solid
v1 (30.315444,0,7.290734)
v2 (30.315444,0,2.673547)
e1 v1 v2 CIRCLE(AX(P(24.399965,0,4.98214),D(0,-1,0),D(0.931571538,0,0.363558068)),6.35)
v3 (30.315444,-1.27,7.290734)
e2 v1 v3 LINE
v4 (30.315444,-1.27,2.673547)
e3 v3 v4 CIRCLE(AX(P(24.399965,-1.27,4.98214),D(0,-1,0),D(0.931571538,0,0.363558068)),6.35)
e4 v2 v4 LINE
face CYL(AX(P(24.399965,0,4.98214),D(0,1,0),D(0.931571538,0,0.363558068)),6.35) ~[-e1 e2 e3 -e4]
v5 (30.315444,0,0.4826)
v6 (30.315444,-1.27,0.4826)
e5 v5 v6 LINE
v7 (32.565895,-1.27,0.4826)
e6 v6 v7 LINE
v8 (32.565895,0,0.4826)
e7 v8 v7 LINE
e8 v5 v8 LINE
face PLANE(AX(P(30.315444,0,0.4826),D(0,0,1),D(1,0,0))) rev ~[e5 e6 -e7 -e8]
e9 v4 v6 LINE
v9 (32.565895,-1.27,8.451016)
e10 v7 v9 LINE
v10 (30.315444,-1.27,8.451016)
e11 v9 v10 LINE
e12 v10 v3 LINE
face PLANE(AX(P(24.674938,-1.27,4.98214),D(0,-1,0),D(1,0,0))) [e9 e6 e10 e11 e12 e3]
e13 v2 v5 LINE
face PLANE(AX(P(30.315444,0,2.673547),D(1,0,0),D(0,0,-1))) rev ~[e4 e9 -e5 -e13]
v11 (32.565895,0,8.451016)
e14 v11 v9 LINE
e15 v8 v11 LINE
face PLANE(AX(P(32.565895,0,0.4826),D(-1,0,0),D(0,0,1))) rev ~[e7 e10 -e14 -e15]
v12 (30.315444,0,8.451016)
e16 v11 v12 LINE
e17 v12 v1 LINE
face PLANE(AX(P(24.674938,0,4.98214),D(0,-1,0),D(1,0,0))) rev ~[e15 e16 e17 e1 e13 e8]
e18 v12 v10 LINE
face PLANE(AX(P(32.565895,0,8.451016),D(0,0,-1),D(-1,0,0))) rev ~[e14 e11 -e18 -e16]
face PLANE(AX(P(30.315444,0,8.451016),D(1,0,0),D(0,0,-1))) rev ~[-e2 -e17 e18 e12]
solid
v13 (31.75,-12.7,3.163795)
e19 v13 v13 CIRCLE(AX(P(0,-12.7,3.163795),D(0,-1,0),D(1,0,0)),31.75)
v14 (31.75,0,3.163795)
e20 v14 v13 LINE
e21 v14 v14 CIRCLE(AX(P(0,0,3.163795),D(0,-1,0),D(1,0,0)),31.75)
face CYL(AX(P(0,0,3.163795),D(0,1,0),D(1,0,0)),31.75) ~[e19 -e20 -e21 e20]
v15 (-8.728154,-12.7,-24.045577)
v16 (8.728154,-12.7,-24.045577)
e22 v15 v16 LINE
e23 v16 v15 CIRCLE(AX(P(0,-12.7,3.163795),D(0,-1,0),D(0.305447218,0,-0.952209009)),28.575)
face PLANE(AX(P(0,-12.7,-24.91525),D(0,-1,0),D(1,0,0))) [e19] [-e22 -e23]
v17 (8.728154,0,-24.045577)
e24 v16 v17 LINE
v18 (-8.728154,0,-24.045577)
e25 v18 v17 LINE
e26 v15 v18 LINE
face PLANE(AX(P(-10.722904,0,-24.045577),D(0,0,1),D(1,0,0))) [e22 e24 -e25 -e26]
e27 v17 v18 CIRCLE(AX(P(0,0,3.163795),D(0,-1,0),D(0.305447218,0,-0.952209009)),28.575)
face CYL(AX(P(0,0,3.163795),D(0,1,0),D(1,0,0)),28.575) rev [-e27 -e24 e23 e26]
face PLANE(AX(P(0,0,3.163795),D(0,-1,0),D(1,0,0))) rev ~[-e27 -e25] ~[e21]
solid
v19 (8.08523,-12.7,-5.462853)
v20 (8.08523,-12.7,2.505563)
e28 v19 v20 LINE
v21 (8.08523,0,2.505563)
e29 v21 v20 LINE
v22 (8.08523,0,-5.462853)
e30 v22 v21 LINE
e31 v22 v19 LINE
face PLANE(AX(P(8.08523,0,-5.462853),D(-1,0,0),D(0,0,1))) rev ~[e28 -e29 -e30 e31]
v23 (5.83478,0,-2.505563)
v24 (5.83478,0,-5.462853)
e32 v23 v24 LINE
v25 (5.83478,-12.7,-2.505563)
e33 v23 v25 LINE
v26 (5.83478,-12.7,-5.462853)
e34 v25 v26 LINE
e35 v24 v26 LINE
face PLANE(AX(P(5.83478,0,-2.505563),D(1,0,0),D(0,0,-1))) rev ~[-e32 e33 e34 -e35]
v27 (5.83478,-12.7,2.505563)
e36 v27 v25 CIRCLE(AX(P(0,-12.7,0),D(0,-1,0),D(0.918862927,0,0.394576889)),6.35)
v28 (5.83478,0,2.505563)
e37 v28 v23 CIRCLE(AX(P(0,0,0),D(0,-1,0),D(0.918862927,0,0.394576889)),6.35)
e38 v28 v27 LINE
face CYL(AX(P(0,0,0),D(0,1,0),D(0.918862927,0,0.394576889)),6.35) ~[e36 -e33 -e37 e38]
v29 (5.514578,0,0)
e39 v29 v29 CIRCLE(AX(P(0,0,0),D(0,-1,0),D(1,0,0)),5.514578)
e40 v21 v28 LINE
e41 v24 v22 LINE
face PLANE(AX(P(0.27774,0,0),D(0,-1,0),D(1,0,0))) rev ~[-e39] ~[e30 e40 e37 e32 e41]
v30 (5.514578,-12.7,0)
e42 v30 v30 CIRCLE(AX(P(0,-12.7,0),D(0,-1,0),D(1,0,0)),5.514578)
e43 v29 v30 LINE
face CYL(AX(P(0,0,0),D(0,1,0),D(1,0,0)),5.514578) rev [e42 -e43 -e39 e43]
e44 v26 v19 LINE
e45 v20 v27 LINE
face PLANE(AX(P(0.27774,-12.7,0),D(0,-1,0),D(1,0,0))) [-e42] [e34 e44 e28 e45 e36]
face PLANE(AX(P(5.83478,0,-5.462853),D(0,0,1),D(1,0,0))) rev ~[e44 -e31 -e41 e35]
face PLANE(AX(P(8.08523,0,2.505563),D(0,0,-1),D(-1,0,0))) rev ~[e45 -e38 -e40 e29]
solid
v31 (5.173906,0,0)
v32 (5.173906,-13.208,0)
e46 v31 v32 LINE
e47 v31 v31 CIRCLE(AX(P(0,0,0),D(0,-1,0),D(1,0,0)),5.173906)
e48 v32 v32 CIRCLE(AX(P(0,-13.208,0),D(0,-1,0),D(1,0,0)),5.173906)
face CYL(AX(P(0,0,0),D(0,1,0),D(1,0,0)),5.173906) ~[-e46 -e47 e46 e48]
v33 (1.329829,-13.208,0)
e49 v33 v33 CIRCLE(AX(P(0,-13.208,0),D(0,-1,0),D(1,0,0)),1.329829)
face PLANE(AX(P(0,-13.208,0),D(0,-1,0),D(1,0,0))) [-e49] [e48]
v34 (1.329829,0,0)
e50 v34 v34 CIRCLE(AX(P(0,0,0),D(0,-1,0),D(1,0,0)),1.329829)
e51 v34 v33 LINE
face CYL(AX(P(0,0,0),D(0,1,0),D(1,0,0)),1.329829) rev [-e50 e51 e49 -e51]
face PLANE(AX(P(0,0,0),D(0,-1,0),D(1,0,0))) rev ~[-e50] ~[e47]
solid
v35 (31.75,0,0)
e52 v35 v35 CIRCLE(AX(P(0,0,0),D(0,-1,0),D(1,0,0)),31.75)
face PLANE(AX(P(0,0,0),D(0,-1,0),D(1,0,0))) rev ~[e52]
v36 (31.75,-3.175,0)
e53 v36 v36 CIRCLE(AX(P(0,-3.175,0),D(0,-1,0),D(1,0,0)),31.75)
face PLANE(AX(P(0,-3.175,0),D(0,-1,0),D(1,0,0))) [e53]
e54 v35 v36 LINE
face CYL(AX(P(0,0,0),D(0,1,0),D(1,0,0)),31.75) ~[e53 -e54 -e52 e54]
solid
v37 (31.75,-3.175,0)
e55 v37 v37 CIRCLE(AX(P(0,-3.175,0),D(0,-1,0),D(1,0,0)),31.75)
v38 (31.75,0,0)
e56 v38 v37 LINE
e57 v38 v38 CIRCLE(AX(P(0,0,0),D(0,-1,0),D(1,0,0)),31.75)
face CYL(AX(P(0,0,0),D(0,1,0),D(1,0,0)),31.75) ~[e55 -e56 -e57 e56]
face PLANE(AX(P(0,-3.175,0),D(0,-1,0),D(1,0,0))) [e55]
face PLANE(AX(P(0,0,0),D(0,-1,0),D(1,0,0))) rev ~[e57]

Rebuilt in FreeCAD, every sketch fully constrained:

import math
import FreeCAD as App
import Part
import Sketcher
from FreeCAD import Vector
Q = App.Units.Quantity

doc = App.newDocument("Part")
body = doc.addObject("PartDesign::Body", "Body")

sketch1 = body.newObject("Sketcher::SketchObject", "Sketch")
sketch1.AttachmentSupport = (doc.getObject("XZ_Plane"), [""])
sketch1.MapMode = "FlatFace"
sketch1.addGeometry([
    Part.Circle(Vector(0, 3, 0), Vector(0, 0, 1), 32),
    Part.Circle(Vector(0, 3, 0), Vector(0, 0, 1), 29),
], False)
sketch1.addConstraint([
    Sketcher.Constraint("Coincident", 1, 3, 0, 3),
    Sketcher.Constraint("PointOnObject", 0, 3, -2),
    Sketcher.Constraint("Diameter", 0, Q("2.5 in")),
    Sketcher.Constraint("Diameter", 1, Q("2.25 in")),
    Sketcher.Constraint("DistanceY", -1, 1, 0, 3, Q("3.163795 mm")),
])
pad1 = body.newObject("PartDesign::Pad", "Pad")
pad1.Profile = sketch1
pad1.Length = Q("0.5 in")

sketch2 = body.newObject("Sketcher::SketchObject", "Sketch001")
sketch2.AttachmentSupport = (doc.getObject("XZ_Plane"), [""])
sketch2.MapMode = "FlatFace"
sketch2.addGeometry([
    Part.LineSegment(Vector(-10.7, -24, 0), Vector(-10.7, -25.8, 0)),
    Part.LineSegment(Vector(-10.7, -25.8, 0), Vector(10.7, -25.8, 0)),
    Part.LineSegment(Vector(10.7, -25.8, 0), Vector(10.7, -24, 0)),
    Part.LineSegment(Vector(10.7, -24, 0), Vector(-10.7, -24, 0)),
], False)
sketch2.addConstraint([
    Sketcher.Constraint("Coincident", 0, 2, 1, 1),
    Sketcher.Constraint("Coincident", 1, 2, 2, 1),
    Sketcher.Constraint("Coincident", 2, 2, 3, 1),
    Sketcher.Constraint("Coincident", 3, 2, 0, 1),
    Sketcher.Constraint("Vertical", 0),
    Sketcher.Constraint("Horizontal", 1),
    Sketcher.Constraint("Vertical", 2),
    Sketcher.Constraint("Horizontal", 3),
    Sketcher.Constraint("DistanceX", 1, 1, 1, 2, Q("21.445807 mm")),
    Sketcher.Constraint("DistanceY", 0, 2, 0, 1, Q("1.739345 mm")),
    Sketcher.Constraint("DistanceX", 0, 2, -1, 1, Q("10.722904 mm")),
    Sketcher.Constraint("DistanceY", 0, 2, -1, 1, Q("25.784923 mm")),
])
pad2 = body.newObject("PartDesign::Pad", "Pad001")
pad2.Profile = sketch2
pad2.Length = Q("0.5 in")
body2 = doc.addObject("PartDesign::Body", "Body001")

sketch3 = body2.newObject("Sketcher::SketchObject", "Sketch002")
sketch3.AttachmentSupport = (doc.getObject("XZ_Plane001"), [""])
sketch3.MapMode = "FlatFace"
sketch3.addGeometry(Part.Circle(Vector(0, 0, 0), Vector(0, 0, 1), 32), False)
sketch3.addConstraint([
    Sketcher.Constraint("Coincident", 0, 3, -1, 1),
    Sketcher.Constraint("Diameter", 0, Q("2.5 in")),
])
pad3 = body2.newObject("PartDesign::Pad", "Pad002")
pad3.Profile = sketch3
pad3.Length = Q("0.125 in")
body3 = doc.addObject("PartDesign::Body", "Body002")

sketch4 = body3.newObject("Sketcher::SketchObject", "Sketch003")
sketch4.AttachmentSupport = (doc.getObject("XZ_Plane002"), [""])
sketch4.MapMode = "FlatFace"
sketch4.addGeometry(Part.Circle(Vector(0, 0, 0), Vector(0, 0, 1), 32), False)
sketch4.addConstraint([
    Sketcher.Constraint("Coincident", 0, 3, -1, 1),
    Sketcher.Constraint("Diameter", 0, Q("2.5 in")),
])
pad4 = body3.newObject("PartDesign::Pad", "Pad003")
pad4.Profile = sketch4
pad4.Length = Q("0.125 in")
body4 = doc.addObject("PartDesign::Body", "Body003")

sketch5 = body4.newObject("Sketcher::SketchObject", "Sketch004")
sketch5.AttachmentSupport = (doc.getObject("XZ_Plane003"), [""])
sketch5.MapMode = "FlatFace"
sketch5.addGeometry([
    Part.ArcOfCircle(Part.Circle(Vector(0, 0, 0), Vector(0, 0, 1), 6.3), math.radians(23), math.radians(337)),
    Part.LineSegment(Vector(5.8, -2.5, 0), Vector(5.8, -5.5, 0)),
    Part.LineSegment(Vector(5.8, -5.5, 0), Vector(8.1, -5.5, 0)),
    Part.LineSegment(Vector(8.1, -5.5, 0), Vector(8.1, 2.5, 0)),
    Part.LineSegment(Vector(8.1, 2.5, 0), Vector(5.8, 2.5, 0)),
    Part.Circle(Vector(0, 0, 0), Vector(0, 0, 1), 5.5),
], False)
sketch5.addConstraint([
    Sketcher.Constraint("Coincident", 0, 2, 1, 1),
    Sketcher.Constraint("Coincident", 1, 2, 2, 1),
    Sketcher.Constraint("Coincident", 2, 2, 3, 1),
    Sketcher.Constraint("Coincident", 3, 2, 4, 1),
    Sketcher.Constraint("Coincident", 4, 2, 0, 1),
    Sketcher.Constraint("Vertical", 1),
    Sketcher.Constraint("Horizontal", 2),
    Sketcher.Constraint("Vertical", 3),
    Sketcher.Constraint("Horizontal", 4),
    Sketcher.Constraint("Coincident", 0, 3, -1, 1),
    Sketcher.Constraint("Coincident", 5, 3, -1, 1),
    Sketcher.Constraint("Vertical", 1, 2, 4, 2),
    Sketcher.Constraint("Radius", 0, Q("0.25 in")),
    Sketcher.Constraint("Diameter", 5, Q("11.029157 mm")),
    Sketcher.Constraint("DistanceX", 2, 1, 2, 2, Q("2.250451 mm")),
    Sketcher.Constraint("DistanceY", 1, 2, 1, 1, Q("2.95729 mm")),
    Sketcher.Constraint("DistanceY", 3, 1, 3, 2, Q("7.968416 mm")),
])
pad5 = body4.newObject("PartDesign::Pad", "Pad004")
pad5.Profile = sketch5
pad5.Length = Q("0.5 in")
body5 = doc.addObject("PartDesign::Body", "Body004")

sketch6 = body5.newObject("Sketcher::SketchObject", "Sketch005")
sketch6.AttachmentSupport = (doc.getObject("XZ_Plane004"), [""])
sketch6.MapMode = "FlatFace"
sketch6.addGeometry([
    Part.ArcOfCircle(Part.Circle(Vector(24.4, 5, 0), Vector(0, 0, 1), 6.3), math.radians(21), math.radians(339)),
    Part.LineSegment(Vector(30.3, 2.7, 0), Vector(30.3, 0.5, 0)),
    Part.LineSegment(Vector(30.3, 0.5, 0), Vector(32.6, 0.5, 0)),
    Part.LineSegment(Vector(32.6, 0.5, 0), Vector(32.6, 8.5, 0)),
    Part.LineSegment(Vector(32.6, 8.5, 0), Vector(30.3, 8.5, 0)),
    Part.LineSegment(Vector(30.3, 8.5, 0), Vector(30.3, 7.3, 0)),
], False)
sketch6.addConstraint([
    Sketcher.Constraint("Coincident", 0, 2, 1, 1),
    Sketcher.Constraint("Coincident", 1, 2, 2, 1),
    Sketcher.Constraint("Coincident", 2, 2, 3, 1),
    Sketcher.Constraint("Coincident", 3, 2, 4, 1),
    Sketcher.Constraint("Coincident", 4, 2, 5, 1),
    Sketcher.Constraint("Coincident", 5, 2, 0, 1),
    Sketcher.Constraint("Vertical", 1),
    Sketcher.Constraint("Horizontal", 2),
    Sketcher.Constraint("Vertical", 3),
    Sketcher.Constraint("Horizontal", 4),
    Sketcher.Constraint("Vertical", 5),
    Sketcher.Constraint("Vertical", 1, 2, 4, 2),
    Sketcher.Constraint("Radius", 0, Q("0.25 in")),
    Sketcher.Constraint("DistanceY", -1, 1, 1, 2, Q("0.019 in")),
    Sketcher.Constraint("DistanceX", 2, 1, 2, 2, Q("2.250451 mm")),
    Sketcher.Constraint("DistanceY", 1, 2, 1, 1, Q("2.190947 mm")),
    Sketcher.Constraint("DistanceY", 3, 1, 3, 2, Q("7.968416 mm")),
    Sketcher.Constraint("DistanceY", 5, 2, 5, 1, Q("1.160282 mm")),
    Sketcher.Constraint("DistanceX", -1, 1, 0, 3, Q("24.399965 mm")),
])
pad6 = body5.newObject("PartDesign::Pad", "Pad005")
pad6.Profile = sketch6
pad6.Length = Q("0.05 in")
body6 = doc.addObject("PartDesign::Body", "Body005")

sketch7 = body6.newObject("Sketcher::SketchObject", "Sketch006")
sketch7.AttachmentSupport = (doc.getObject("XZ_Plane005"), [""])
sketch7.MapMode = "FlatFace"
sketch7.addGeometry([
    Part.Circle(Vector(0, 0, 0), Vector(0, 0, 1), 5.2),
    Part.Circle(Vector(0, 0, 0), Vector(0, 0, 1), 1.3),
], False)
sketch7.addConstraint([
    Sketcher.Constraint("Coincident", 0, 3, -1, 1),
    Sketcher.Constraint("Coincident", 1, 3, -1, 1),
    Sketcher.Constraint("Diameter", 0, Q("10.347813 mm")),
    Sketcher.Constraint("Diameter", 1, Q("2.659658 mm")),
])
pad7 = body6.newObject("PartDesign::Pad", "Pad006")
pad7.Profile = sketch7
pad7.Length = Q("0.52 in")

doc.recompute()
